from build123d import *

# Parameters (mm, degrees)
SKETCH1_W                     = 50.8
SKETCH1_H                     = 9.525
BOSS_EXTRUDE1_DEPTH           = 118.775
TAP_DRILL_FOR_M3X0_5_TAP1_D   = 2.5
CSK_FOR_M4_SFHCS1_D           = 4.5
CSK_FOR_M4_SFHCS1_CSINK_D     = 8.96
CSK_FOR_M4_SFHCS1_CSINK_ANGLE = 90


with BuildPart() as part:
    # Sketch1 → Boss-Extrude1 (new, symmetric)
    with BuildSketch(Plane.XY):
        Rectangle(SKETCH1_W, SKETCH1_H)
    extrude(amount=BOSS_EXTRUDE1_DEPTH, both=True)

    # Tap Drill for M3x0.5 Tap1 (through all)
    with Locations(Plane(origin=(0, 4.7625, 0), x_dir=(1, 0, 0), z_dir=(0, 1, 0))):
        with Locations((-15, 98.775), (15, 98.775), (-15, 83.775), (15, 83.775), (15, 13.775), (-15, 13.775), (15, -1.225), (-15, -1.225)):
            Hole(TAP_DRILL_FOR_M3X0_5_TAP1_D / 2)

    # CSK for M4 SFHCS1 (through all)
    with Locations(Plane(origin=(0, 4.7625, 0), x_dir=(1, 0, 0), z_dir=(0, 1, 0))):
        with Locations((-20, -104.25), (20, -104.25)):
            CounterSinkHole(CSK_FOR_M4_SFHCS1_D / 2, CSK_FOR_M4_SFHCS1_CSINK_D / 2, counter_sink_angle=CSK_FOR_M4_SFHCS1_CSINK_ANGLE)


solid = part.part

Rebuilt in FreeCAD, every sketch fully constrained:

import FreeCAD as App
import Part
import Sketcher
Q = App.Units.Quantity


def add_polygon(sketch, points):
    """Adds a closed chain of lines whose ends are joined by coincident constraints."""
    first, n = sketch.GeometryCount, len(points)
    for a, b in zip(points, points[1:] + points[:1]):
        sketch.addGeometry(Part.LineSegment(App.Vector(*a, 0), App.Vector(*b, 0)), False)
    for i in range(n):
        sketch.addConstraint(Sketcher.Constraint("Coincident", first + i, 2, first + (i + 1) % n, 1))

doc = App.newDocument("Part")
body = doc.addObject("PartDesign::Body", "Body")

sketch1 = doc.addObject("Sketcher::SketchObject", "Sketch")
body.addObject(sketch1)
sketch1.AttachmentSupport = (doc.XY_Plane, [""])
sketch1.MapMode = "FlatFace"
add_polygon(sketch1, [(-25, 5), (-25, -5), (25, -5), (25, 5)])
sketch1.addConstraint([
    Sketcher.Constraint("Vertical", 0),
    Sketcher.Constraint("Horizontal", 1),
    Sketcher.Constraint("Vertical", 2),
    Sketcher.Constraint("Horizontal", 3),
    Sketcher.Constraint("Symmetric", 0, 2, 2, 2, -1, 1),
    Sketcher.Constraint("DistanceX", 1, 1, 1, 2, Q("50.8 mm")),
    Sketcher.Constraint("DistanceY", 0, 2, 0, 1, Q("9.525 mm")),
])
pad1 = doc.addObject("PartDesign::Pad", "Pad")
body.addObject(pad1)
pad1.Profile = sketch1
pad1.Length = 237.55
pad1.Midplane = True

sketch2 = doc.addObject("Sketcher::SketchObject", "Sketch001")
body.addObject(sketch2)
sketch2.AttachmentSupport = (doc.XZ_Plane, [""])
sketch2.MapMode = "FlatFace"
sketch2.AttachmentOffset = App.Placement(App.Vector(0, 0, -4.7625), App.Rotation())
sketch2.addGeometry([
    Part.Circle(App.Vector(-15, -98.8, 0), App.Vector(0, 0, 1), 1.2),
    Part.Circle(App.Vector(15, -98.8, 0), App.Vector(0, 0, 1), 1.2),
    Part.Circle(App.Vector(-15, -83.8, 0), App.Vector(0, 0, 1), 1.2),
    Part.Circle(App.Vector(15, -83.8, 0), App.Vector(0, 0, 1), 1.2),
    Part.Circle(App.Vector(15, -13.8, 0), App.Vector(0, 0, 1), 1.2),
    Part.Circle(App.Vector(-15, -13.8, 0), App.Vector(0, 0, 1), 1.2),
    Part.Circle(App.Vector(15, 1.2, 0), App.Vector(0, 0, 1), 1.2),
    Part.Circle(App.Vector(-15, 1.2, 0), App.Vector(0, 0, 1), 1.2),
], False)
sketch2.addConstraint([
    Sketcher.Constraint("Equal", 0, 1),
    Sketcher.Constraint("Equal", 1, 2),
    Sketcher.Constraint("Equal", 2, 3),
    Sketcher.Constraint("Equal", 3, 4),
    Sketcher.Constraint("Equal", 4, 5),
    Sketcher.Constraint("Equal", 5, 6),
    Sketcher.Constraint("Equal", 6, 7),
    Sketcher.Constraint("Symmetric", 0, 3, 1, 3, -2),
    Sketcher.Constraint("Symmetric", 2, 3, 3, 3, -2),
    Sketcher.Constraint("Symmetric", 4, 3, 5, 3, -2),
    Sketcher.Constraint("Symmetric", 6, 3, 7, 3, -2),
    Sketcher.Constraint("Vertical", 0, 3, 2, 3),
    Sketcher.Constraint("Vertical", 3, 3, 4, 3),
    Sketcher.Constraint("Vertical", 4, 3, 6, 3),
    Sketcher.Constraint("Diameter", 0, Q("2.5 mm")),
    Sketcher.Constraint("DistanceX", 0, 3, -1, 1, Q("15 mm")),
    Sketcher.Constraint("DistanceY", 0, 3, 2, 3, Q("15 mm")),
    Sketcher.Constraint("DistanceY", 3, 3, 4, 3, Q("70 mm")),
    Sketcher.Constraint("DistanceY", 4, 3, 6, 3, Q("15 mm")),
    Sketcher.Constraint("DistanceY", 0, 3, -1, 1, Q("98.775 mm")),
])
doc.recompute()
hole = doc.addObject("PartDesign::Hole", "Hole")
body.addObject(hole)
hole.Profile = sketch2
hole.ThreadType = "None"
hole.Diameter = 2.5
hole.DepthType = "ThroughAll"
hole.Reversed = True

sketch3 = doc.addObject("Sketcher::SketchObject", "Sketch002")
body.addObject(sketch3)
sketch3.AttachmentSupport = (doc.XZ_Plane, [""])
sketch3.MapMode = "FlatFace"
sketch3.AttachmentOffset = App.Placement(App.Vector(0, 0, -4.7625), App.Rotation())
sketch3.addGeometry([
    Part.Circle(App.Vector(-20, 104.2, 0), App.Vector(0, 0, 1), 2.2),
    Part.Circle(App.Vector(20, 104.2, 0), App.Vector(0, 0, 1), 2.2),
], False)
sketch3.addConstraint([
    Sketcher.Constraint("Equal", 0, 1),
    Sketcher.Constraint("Symmetric", 0, 3, 1, 3, -2),
    Sketcher.Constraint("Diameter", 0, Q("4.5 mm")),
    Sketcher.Constraint("DistanceX", 0, 3, -1, 1, Q("20 mm")),
    Sketcher.Constraint("DistanceY", -1, 1, 0, 3, Q("104.25 mm")),
])
doc.recompute()
hole2 = doc.addObject("PartDesign::Hole", "Hole001")
body.addObject(hole2)
hole2.Profile = sketch3
hole2.ThreadType = "None"
hole2.Diameter = 4.5
hole2.DepthType = "ThroughAll"
hole2.HoleCutType = "Countersink"
hole2.HoleCutDiameter = 8.96
hole2.HoleCutCountersinkAngle = 90
hole2.Reversed = True

doc.recompute()
